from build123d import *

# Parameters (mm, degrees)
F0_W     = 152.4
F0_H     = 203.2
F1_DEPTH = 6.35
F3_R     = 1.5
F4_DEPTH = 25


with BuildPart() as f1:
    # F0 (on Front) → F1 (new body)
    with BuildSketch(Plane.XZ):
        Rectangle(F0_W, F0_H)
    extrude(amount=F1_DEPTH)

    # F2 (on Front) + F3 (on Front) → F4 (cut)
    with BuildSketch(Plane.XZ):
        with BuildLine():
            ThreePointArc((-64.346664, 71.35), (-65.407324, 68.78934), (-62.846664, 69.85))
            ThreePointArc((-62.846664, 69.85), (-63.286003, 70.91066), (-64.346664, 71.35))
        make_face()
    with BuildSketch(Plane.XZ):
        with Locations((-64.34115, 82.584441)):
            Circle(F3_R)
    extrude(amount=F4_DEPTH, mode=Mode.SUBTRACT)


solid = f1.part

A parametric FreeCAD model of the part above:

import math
import FreeCAD as App
import Part
import Sketcher

V = App.Vector
Q = App.Units.Quantity


def add_polygon(sketch, points):
    """Adds a closed chain of lines whose ends are joined by coincident constraints."""
    first, n = sketch.GeometryCount, len(points)
    for a, b in zip(points, points[1:] + points[:1]):
        sketch.addGeometry(Part.LineSegment(App.Vector(*a, 0), App.Vector(*b, 0)), False)
    for i in range(n):
        sketch.addConstraint(Sketcher.Constraint("Coincident", first + i, 2, first + (i + 1) % n, 1))

doc = App.newDocument("Part")
body = doc.addObject("PartDesign::Body", "Body")

sketch1 = body.newObject("Sketcher::SketchObject", "Sketch")
sketch1.AttachmentSupport = (doc.getObject("XZ_Plane"), [""])
sketch1.MapMode = "FlatFace"
add_polygon(sketch1, [(-76, 102), (-76, -102), (76, -102), (76, 102)])
sketch1.addConstraint([
    Sketcher.Constraint("Vertical", 0),
    Sketcher.Constraint("Horizontal", 1),
    Sketcher.Constraint("Vertical", 2),
    Sketcher.Constraint("Horizontal", 3),
    Sketcher.Constraint("Symmetric", 0, 2, 2, 2, -1, 1),
    Sketcher.Constraint("DistanceX", 1, 1, 1, 2, Q("152.4 mm")),
    Sketcher.Constraint("DistanceY", 0, 2, 0, 1, Q("203.2 mm")),
])
pad1 = body.newObject("PartDesign::Pad", "Pad")
pad1.Profile = sketch1
pad1.Length = 6.35

sketch2 = body.newObject("Sketcher::SketchObject", "Sketch001")
sketch2.AttachmentSupport = (doc.getObject("XZ_Plane"), [""])
sketch2.MapMode = "FlatFace"
sketch2.addGeometry([
    Part.ArcOfCircle(Part.Circle(V(-64.3, 69.9, 0), V(0, 0, 1), 1.5), math.radians(90), math.radians(360)),
    Part.ArcOfCircle(Part.Circle(V(-64.3, 69.9, 0), V(0, 0, 1), 1.5), math.radians(0), math.radians(90)),
    Part.Circle(V(-64.3, 82.6, 0), V(0, 0, 1), 1.5),
], False)
sketch2.addConstraint([
    Sketcher.Constraint("Tangent", 0, 1, 1, 2),
    Sketcher.Constraint("Coincident", 1, 1, 0, 2),
    Sketcher.Constraint("Equal", 1, 2),
    Sketcher.Constraint("Horizontal", 0, 3, 1, 1),
    Sketcher.Constraint("Vertical", 1, 3, 0, 1),
    Sketcher.Constraint("Diameter", 2, Q("3 mm")),
    Sketcher.Constraint("DistanceY", -1, 1, 0, 3, Q("69.85 mm")),
    Sketcher.Constraint("DistanceX", 2, 3, -1, 1, Q("64.34115 mm")),
    Sketcher.Constraint("DistanceY", -1, 1, 2, 3, Q("82.584441 mm")),
    Sketcher.Constraint("DistanceX", 0, 3, -1, 1, Q("64.346664 mm")),
])
pocket1 = body.newObject("PartDesign::Pocket", "Pocket")
pocket1.Profile = sketch2
pocket1.Length = 25
pocket1.Reversed = True

doc.recompute()
